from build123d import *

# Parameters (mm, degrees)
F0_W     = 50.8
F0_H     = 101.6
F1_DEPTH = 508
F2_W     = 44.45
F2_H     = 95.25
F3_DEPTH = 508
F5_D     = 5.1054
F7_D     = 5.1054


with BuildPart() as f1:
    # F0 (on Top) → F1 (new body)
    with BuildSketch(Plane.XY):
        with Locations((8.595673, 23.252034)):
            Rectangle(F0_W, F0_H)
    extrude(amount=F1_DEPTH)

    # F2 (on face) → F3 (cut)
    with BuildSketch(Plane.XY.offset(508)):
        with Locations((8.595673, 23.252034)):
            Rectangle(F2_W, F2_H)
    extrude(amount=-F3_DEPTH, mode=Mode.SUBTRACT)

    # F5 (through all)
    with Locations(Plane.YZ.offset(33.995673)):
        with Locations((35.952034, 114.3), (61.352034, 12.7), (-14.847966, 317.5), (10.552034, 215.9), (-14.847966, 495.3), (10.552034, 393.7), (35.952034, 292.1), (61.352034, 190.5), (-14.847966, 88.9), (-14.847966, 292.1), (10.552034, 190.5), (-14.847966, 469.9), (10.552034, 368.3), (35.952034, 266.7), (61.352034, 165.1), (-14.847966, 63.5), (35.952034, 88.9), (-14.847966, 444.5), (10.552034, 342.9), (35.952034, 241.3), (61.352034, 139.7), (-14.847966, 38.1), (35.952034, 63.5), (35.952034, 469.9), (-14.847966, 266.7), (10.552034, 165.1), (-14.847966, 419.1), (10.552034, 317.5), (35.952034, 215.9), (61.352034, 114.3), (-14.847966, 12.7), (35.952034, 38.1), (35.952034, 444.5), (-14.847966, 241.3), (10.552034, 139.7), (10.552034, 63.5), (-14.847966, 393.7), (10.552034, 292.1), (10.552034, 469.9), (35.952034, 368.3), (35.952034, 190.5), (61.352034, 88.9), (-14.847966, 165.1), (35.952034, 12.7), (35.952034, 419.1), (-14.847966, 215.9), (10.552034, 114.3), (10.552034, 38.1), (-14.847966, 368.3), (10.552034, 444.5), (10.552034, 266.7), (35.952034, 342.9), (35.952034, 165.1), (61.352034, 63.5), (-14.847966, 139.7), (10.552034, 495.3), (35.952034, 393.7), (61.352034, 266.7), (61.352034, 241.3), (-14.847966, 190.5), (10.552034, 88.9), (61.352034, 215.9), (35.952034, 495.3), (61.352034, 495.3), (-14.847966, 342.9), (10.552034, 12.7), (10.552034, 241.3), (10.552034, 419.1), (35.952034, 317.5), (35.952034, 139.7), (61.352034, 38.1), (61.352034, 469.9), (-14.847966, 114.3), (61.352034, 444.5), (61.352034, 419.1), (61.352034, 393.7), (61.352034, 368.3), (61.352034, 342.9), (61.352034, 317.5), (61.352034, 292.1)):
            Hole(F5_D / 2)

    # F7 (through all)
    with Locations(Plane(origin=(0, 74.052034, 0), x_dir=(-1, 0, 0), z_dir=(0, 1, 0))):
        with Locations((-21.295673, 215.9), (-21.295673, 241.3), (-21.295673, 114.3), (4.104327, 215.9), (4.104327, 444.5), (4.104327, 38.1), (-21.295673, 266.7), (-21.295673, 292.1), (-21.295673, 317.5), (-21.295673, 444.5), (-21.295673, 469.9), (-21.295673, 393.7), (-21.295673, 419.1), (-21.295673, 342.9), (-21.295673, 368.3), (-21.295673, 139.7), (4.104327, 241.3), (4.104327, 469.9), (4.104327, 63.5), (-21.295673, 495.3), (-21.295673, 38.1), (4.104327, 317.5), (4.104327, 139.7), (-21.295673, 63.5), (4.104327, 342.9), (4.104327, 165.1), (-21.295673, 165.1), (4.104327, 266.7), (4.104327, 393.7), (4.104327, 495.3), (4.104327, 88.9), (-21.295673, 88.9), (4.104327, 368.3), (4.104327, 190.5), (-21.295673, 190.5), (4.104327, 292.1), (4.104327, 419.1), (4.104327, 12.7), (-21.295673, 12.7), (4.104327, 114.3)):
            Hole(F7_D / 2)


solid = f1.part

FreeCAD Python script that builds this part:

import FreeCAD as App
import Part
import Sketcher
from FreeCAD import Vector
Q = App.Units.Quantity


def add_polygon(sketch, points):
    """Adds a closed chain of lines whose ends are joined by coincident constraints."""
    first, n = sketch.GeometryCount, len(points)
    for a, b in zip(points, points[1:] + points[:1]):
        sketch.addGeometry(Part.LineSegment(App.Vector(*a, 0), App.Vector(*b, 0)), False)
    for i in range(n):
        sketch.addConstraint(Sketcher.Constraint("Coincident", first + i, 2, first + (i + 1) % n, 1))

doc = App.newDocument("Part")
body = doc.addObject("PartDesign::Body", "Body")

# Sketch on XY plane
sketch1 = doc.addObject("Sketcher::SketchObject", "Sketch")
body.addObject(sketch1)
sketch1.AttachmentSupport = (doc.XY_Plane, [""])
sketch1.MapMode = "FlatFace"
add_polygon(sketch1, [(-16.804327, 74.052034), (-16.804327, -27.547966), (33.995673, -27.547966), (33.995673, 74.052034)])  # lines 0-3
sketch1.addConstraint([
    Sketcher.Constraint("Vertical", 0),
    Sketcher.Constraint("Horizontal", 1),
    Sketcher.Constraint("Vertical", 2),
    Sketcher.Constraint("Horizontal", 3),
    Sketcher.Constraint("DistanceX", 1, 1, 1, 2, Q("2 in")),
    Sketcher.Constraint("DistanceY", 0, 2, 0, 1, Q("4 in")),
    Sketcher.Constraint("DistanceX", 0, 2, -1, 1, Q("16.804327 mm")),
    Sketcher.Constraint("DistanceY", 0, 2, -1, 1, Q("27.547966 mm")),
])
pad1 = doc.addObject("PartDesign::Pad", "Pad")
body.addObject(pad1)
pad1.Profile = sketch1
pad1.Length = Q("20 in")

# Sketch on XY plane
sketch2 = doc.addObject("Sketcher::SketchObject", "Sketch001")
body.addObject(sketch2)
sketch2.AttachmentSupport = (doc.XY_Plane, [""])
sketch2.MapMode = "FlatFace"
sketch2.AttachmentOffset = App.Placement(Vector(0, 0, 20 * 25.4), App.Rotation())
add_polygon(sketch2, [(-13.629327, 70.877034), (-13.629327, -24.372966), (30.820673, -24.372966), (30.820673, 70.877034)])  # lines 0-3
sketch2.addConstraint([
    Sketcher.Constraint("Vertical", 0),
    Sketcher.Constraint("Horizontal", 1),
    Sketcher.Constraint("Vertical", 2),
    Sketcher.Constraint("Horizontal", 3),
    Sketcher.Constraint("DistanceX", 1, 1, 1, 2, Q("1.75 in")),
    Sketcher.Constraint("DistanceY", 0, 2, 0, 1, Q("3.75 in")),
    Sketcher.Constraint("DistanceX", 0, 2, -1, 1, Q("13.629327 mm")),
    Sketcher.Constraint("DistanceY", 0, 2, -1, 1, Q("24.372966 mm")),
])
pocket1 = doc.addObject("PartDesign::Pocket", "Pocket")
body.addObject(pocket1)
pocket1.Profile = sketch2
pocket1.Length = Q("20 in")

# Sketch on YZ plane
sketch3 = doc.addObject("Sketcher::SketchObject", "Sketch002")
body.addObject(sketch3)
sketch3.AttachmentSupport = (doc.YZ_Plane, [""])
sketch3.MapMode = "FlatFace"
sketch3.AttachmentOffset = App.Placement(Vector(0, 0, 33.995673), App.Rotation())
sketch3.addGeometry([
    Part.Circle(Vector(35.952034, 114.3, 0), Vector(0, 0, 1), 2.5527),  # 0
    Part.Circle(Vector(61.352034, 12.7, 0), Vector(0, 0, 1), 2.5527),  # 1
    Part.Circle(Vector(-14.847966, 317.5, 0), Vector(0, 0, 1), 2.5527),  # 2
    Part.Circle(Vector(10.552034, 215.9, 0), Vector(0, 0, 1), 2.5527),  # 3
    Part.Circle(Vector(-14.847966, 495.3, 0), Vector(0, 0, 1), 2.5527),  # 4
    Part.Circle(Vector(10.552034, 393.7, 0), Vector(0, 0, 1), 2.5527),  # 5
    Part.Circle(Vector(35.952034, 292.1, 0), Vector(0, 0, 1), 2.5527),  # 6
    Part.Circle(Vector(61.352034, 190.5, 0), Vector(0, 0, 1), 2.5527),  # 7
    Part.Circle(Vector(-14.847966, 88.9, 0), Vector(0, 0, 1), 2.5527),  # 8
    Part.Circle(Vector(-14.847966, 292.1, 0), Vector(0, 0, 1), 2.5527),  # 9
    Part.Circle(Vector(10.552034, 190.5, 0), Vector(0, 0, 1), 2.5527),  # 10
    Part.Circle(Vector(-14.847966, 469.9, 0), Vector(0, 0, 1), 2.5527),  # 11
    Part.Circle(Vector(10.552034, 368.3, 0), Vector(0, 0, 1), 2.5527),  # 12
    Part.Circle(Vector(35.952034, 266.7, 0), Vector(0, 0, 1), 2.5527),  # 13
    Part.Circle(Vector(61.352034, 165.1, 0), Vector(0, 0, 1), 2.5527),  # 14
    Part.Circle(Vector(-14.847966, 63.5, 0), Vector(0, 0, 1), 2.5527),  # 15
    Part.Circle(Vector(35.952034, 88.9, 0), Vector(0, 0, 1), 2.5527),  # 16
    Part.Circle(Vector(-14.847966, 444.5, 0), Vector(0, 0, 1), 2.5527),  # 17
    Part.Circle(Vector(10.552034, 342.9, 0), Vector(0, 0, 1), 2.5527),  # 18
    Part.Circle(Vector(35.952034, 241.3, 0), Vector(0, 0, 1), 2.5527),  # 19
    Part.Circle(Vector(61.352034, 139.7, 0), Vector(0, 0, 1), 2.5527),  # 20
    Part.Circle(Vector(-14.847966, 38.1, 0), Vector(0, 0, 1), 2.5527),  # 21
    Part.Circle(Vector(35.952034, 63.5, 0), Vector(0, 0, 1), 2.5527),  # 22
    Part.Circle(Vector(35.952034, 469.9, 0), Vector(0, 0, 1), 2.5527),  # 23
    Part.Circle(Vector(-14.847966, 266.7, 0), Vector(0, 0, 1), 2.5527),  # 24
    Part.Circle(Vector(10.552034, 165.1, 0), Vector(0, 0, 1), 2.5527),  # 25
    Part.Circle(Vector(-14.847966, 419.1, 0), Vector(0, 0, 1), 2.5527),  # 26
    Part.Circle(Vector(10.552034, 317.5, 0), Vector(0, 0, 1), 2.5527),  # 27
    Part.Circle(Vector(35.952034, 215.9, 0), Vector(0, 0, 1), 2.5527),  # 28
    Part.Circle(Vector(61.352034, 114.3, 0), Vector(0, 0, 1), 2.5527),  # 29
    Part.Circle(Vector(-14.847966, 12.7, 0), Vector(0, 0, 1), 2.5527),  # 30
    Part.Circle(Vector(35.952034, 38.1, 0), Vector(0, 0, 1), 2.5527),  # 31
    Part.Circle(Vector(35.952034, 444.5, 0), Vector(0, 0, 1), 2.5527),  # 32
    Part.Circle(Vector(-14.847966, 241.3, 0), Vector(0, 0, 1), 2.5527),  # 33
    Part.Circle(Vector(10.552034, 139.7, 0), Vector(0, 0, 1), 2.5527),  # 34
    Part.Circle(Vector(10.552034, 63.5, 0), Vector(0, 0, 1), 2.5527),  # 35
    Part.Circle(Vector(-14.847966, 393.7, 0), Vector(0, 0, 1), 2.5527),  # 36
    Part.Circle(Vector(10.552034, 292.1, 0), Vector(0, 0, 1), 2.5527),  # 37
    Part.Circle(Vector(10.552034, 469.9, 0), Vector(0, 0, 1), 2.5527),  # 38
    Part.Circle(Vector(35.952034, 368.3, 0), Vector(0, 0, 1), 2.5527),  # 39
    Part.Circle(Vector(35.952034, 190.5, 0), Vector(0, 0, 1), 2.5527),  # 40
    Part.Circle(Vector(61.352034, 88.9, 0), Vector(0, 0, 1), 2.5527),  # 41
    Part.Circle(Vector(-14.847966, 165.1, 0), Vector(0, 0, 1), 2.5527),  # 42
    Part.Circle(Vector(35.952034, 12.7, 0), Vector(0, 0, 1), 2.5527),  # 43
    Part.Circle(Vector(35.952034, 419.1, 0), Vector(0, 0, 1), 2.5527),  # 44
    Part.Circle(Vector(-14.847966, 215.9, 0), Vector(0, 0, 1), 2.5527),  # 45
    Part.Circle(Vector(10.552034, 114.3, 0), Vector(0, 0, 1), 2.5527),  # 46
    Part.Circle(Vector(10.552034, 38.1, 0), Vector(0, 0, 1), 2.5527),  # 47
    Part.Circle(Vector(-14.847966, 368.3, 0), Vector(0, 0, 1), 2.5527),  # 48
    Part.Circle(Vector(10.552034, 444.5, 0), Vector(0, 0, 1), 2.5527),  # 49
    Part.Circle(Vector(10.552034, 266.7, 0), Vector(0, 0, 1), 2.5527),  # 50
    Part.Circle(Vector(35.952034, 342.9, 0), Vector(0, 0, 1), 2.5527),  # 51
    Part.Circle(Vector(35.952034, 165.1, 0), Vector(0, 0, 1), 2.5527),  # 52
    Part.Circle(Vector(61.352034, 63.5, 0), Vector(0, 0, 1), 2.5527),  # 53
    Part.Circle(Vector(-14.847966, 139.7, 0), Vector(0, 0, 1), 2.5527),  # 54
    Part.Circle(Vector(10.552034, 495.3, 0), Vector(0, 0, 1), 2.5527),  # 55
    Part.Circle(Vector(35.952034, 393.7, 0), Vector(0, 0, 1), 2.5527),  # 56
    Part.Circle(Vector(61.352034, 266.7, 0), Vector(0, 0, 1), 2.5527),  # 57
    Part.Circle(Vector(61.352034, 241.3, 0), Vector(0, 0, 1), 2.5527),  # 58
    Part.Circle(Vector(-14.847966, 190.5, 0), Vector(0, 0, 1), 2.5527),  # 59
    Part.Circle(Vector(10.552034, 88.9, 0), Vector(0, 0, 1), 2.5527),  # 60
    Part.Circle(Vector(61.352034, 215.9, 0), Vector(0, 0, 1), 2.5527),  # 61
    Part.Circle(Vector(35.952034, 495.3, 0), Vector(0, 0, 1), 2.5527),  # 62
    Part.Circle(Vector(61.352034, 495.3, 0), Vector(0, 0, 1), 2.5527),  # 63
    Part.Circle(Vector(-14.847966, 342.9, 0), Vector(0, 0, 1), 2.5527),  # 64
    Part.Circle(Vector(10.552034, 12.7, 0), Vector(0, 0, 1), 2.5527),  # 65
    Part.Circle(Vector(10.552034, 241.3, 0), Vector(0, 0, 1), 2.5527),  # 66
    Part.Circle(Vector(10.552034, 419.1, 0), Vector(0, 0, 1), 2.5527),  # 67
    Part.Circle(Vector(35.952034, 317.5, 0), Vector(0, 0, 1), 2.5527),  # 68
    Part.Circle(Vector(35.952034, 139.7, 0), Vector(0, 0, 1), 2.5527),  # 69
    Part.Circle(Vector(61.352034, 38.1, 0), Vector(0, 0, 1), 2.5527),  # 70
    Part.Circle(Vector(61.352034, 469.9, 0), Vector(0, 0, 1), 2.5527),  # 71
    Part.Circle(Vector(-14.847966, 114.3, 0), Vector(0, 0, 1), 2.5527),  # 72
    Part.Circle(Vector(61.352034, 444.5, 0), Vector(0, 0, 1), 2.5527),  # 73
    Part.Circle(Vector(61.352034, 419.1, 0), Vector(0, 0, 1), 2.5527),  # 74
    Part.Circle(Vector(61.352034, 393.7, 0), Vector(0, 0, 1), 2.5527),  # 75
    Part.Circle(Vector(61.352034, 368.3, 0), Vector(0, 0, 1), 2.5527),  # 76
    Part.Circle(Vector(61.352034, 342.9, 0), Vector(0, 0, 1), 2.5527),  # 77
    Part.Circle(Vector(61.352034, 317.5, 0), Vector(0, 0, 1), 2.5527),  # 78
    Part.Circle(Vector(61.352034, 292.1, 0), Vector(0, 0, 1), 2.5527),  # 79
], False)
sketch3.addConstraint([
    Sketcher.Constraint("Equal", 0, 1),
    Sketcher.Constraint("Equal", 1, 2),
    Sketcher.Constraint("Equal", 2, 3),
    Sketcher.Constraint("Equal", 3, 4),
    Sketcher.Constraint("Equal", 4, 5),
    Sketcher.Constraint("Equal", 5, 6),
    Sketcher.Constraint("Equal", 6, 7),
    Sketcher.Constraint("Equal", 7, 8),
    Sketcher.Constraint("Equal", 8, 9),
    Sketcher.Constraint("Equal", 9, 10),
    Sketcher.Constraint("Equal", 10, 11),
    Sketcher.Constraint("Equal", 11, 12),
    Sketcher.Constraint("Equal", 12, 13),
    Sketcher.Constraint("Equal", 13, 14),
    Sketcher.Constraint("Equal", 14, 15),
    Sketcher.Constraint("Equal", 15, 16),
    Sketcher.Constraint("Equal", 16, 17),
    Sketcher.Constraint("Equal", 17, 18),
    Sketcher.Constraint("Equal", 18, 19),
    Sketcher.Constraint("Equal", 19, 20),
    Sketcher.Constraint("Equal", 20, 21),
    Sketcher.Constraint("Equal", 21, 22),
    Sketcher.Constraint("Equal", 22, 23),
    Sketcher.Constraint("Equal", 23, 24),
    Sketcher.Constraint("Equal", 24, 25),
    Sketcher.Constraint("Equal", 25, 26),
    Sketcher.Constraint("Equal", 26, 27),
    Sketcher.Constraint("Equal", 27, 28),
    Sketcher.Constraint("Equal", 28, 29),
    Sketcher.Constraint("Equal", 29, 30),
    Sketcher.Constraint("Equal", 30, 31),
    Sketcher.Constraint("Equal", 31, 32),
    Sketcher.Constraint("Equal", 32, 33),
    Sketcher.Constraint("Equal", 33, 34),
    Sketcher.Constraint("Equal", 34, 35),
    Sketcher.Constraint("Equal", 35, 36),
    Sketcher.Constraint("Equal", 36, 37),
    Sketcher.Constraint("Equal", 37, 38),
    Sketcher.Constraint("Equal", 38, 39),
    Sketcher.Constraint("Equal", 39, 40),
    Sketcher.Constraint("Equal", 40, 41),
    Sketcher.Constraint("Equal", 41, 42),
    Sketcher.Constraint("Equal", 42, 43),
    Sketcher.Constraint("Equal", 43, 44),
    Sketcher.Constraint("Equal", 44, 45),
    Sketcher.Constraint("Equal", 45, 46),
    Sketcher.Constraint("Equal", 46, 47),
    Sketcher.Constraint("Equal", 47, 48),
    Sketcher.Constraint("Equal", 48, 49),
    Sketcher.Constraint("Equal", 49, 50),
    Sketcher.Constraint("Equal", 50, 51),
    Sketcher.Constraint("Equal", 51, 52),
    Sketcher.Constraint("Equal", 52, 53),
    Sketcher.Constraint("Equal", 53, 54),
    Sketcher.Constraint("Equal", 54, 55),
    Sketcher.Constraint("Equal", 55, 56),
    Sketcher.Constraint("Equal", 56, 57),
    Sketcher.Constraint("Equal", 57, 58),
    Sketcher.Constraint("Equal", 58, 59),
    Sketcher.Constraint("Equal", 59, 60),
    Sketcher.Constraint("Equal", 60, 61),
    Sketcher.Constraint("Equal", 61, 62),
    Sketcher.Constraint("Equal", 62, 63),
    Sketcher.Constraint("Equal", 63, 64),
    Sketcher.Constraint("Equal", 64, 65),
    Sketcher.Constraint("Equal", 65, 66),
    Sketcher.Constraint("Equal", 66, 67),
    Sketcher.Constraint("Equal", 67, 68),
    Sketcher.Constraint("Equal", 68, 69),
    Sketcher.Constraint("Equal", 69, 70),
    Sketcher.Constraint("Equal", 70, 71),
    Sketcher.Constraint("Equal", 71, 72),
    Sketcher.Constraint("Equal", 72, 73),
    Sketcher.Constraint("Equal", 73, 74),
    Sketcher.Constraint("Equal", 74, 75),
    Sketcher.Constraint("Equal", 75, 76),
    Sketcher.Constraint("Equal", 76, 77),
    Sketcher.Constraint("Equal", 77, 78),
    Sketcher.Constraint("Equal", 78, 79),
    Sketcher.Constraint("Horizontal", 6, 3, 9, 3),
    Sketcher.Constraint("Horizontal", 7, 3, 10, 3),
    Sketcher.Constraint("Horizontal", 8, 3, 16, 3),
    Sketcher.Constraint("Horizontal", 15, 3, 22, 3),
    Sketcher.Constraint("Horizontal", 11, 3, 23, 3),
    Sketcher.Constraint("Horizontal", 13, 3, 24, 3),
    Sketcher.Constraint("Horizontal", 14, 3, 25, 3),
    Sketcher.Constraint("Horizontal", 2, 3, 27, 3),
    Sketcher.Constraint("Horizontal", 3, 3, 28, 3),
    Sketcher.Constraint("Horizontal", 0, 3, 29, 3),
    Sketcher.Constraint("Horizontal", 1, 3, 30, 3),
    Sketcher.Constraint("Horizontal", 21, 3, 31, 3),
    Sketcher.Constraint("Horizontal", 17, 3, 32, 3),
    Sketcher.Constraint("Horizontal", 19, 3, 33, 3),
    Sketcher.Constraint("Horizontal", 20, 3, 34, 3),
    Sketcher.Constraint("Horizontal", 22, 3, 35, 3),
    Sketcher.Constraint("Horizontal", 5, 3, 36, 3),
    Sketcher.Constraint("Horizontal", 9, 3, 37, 3),
    Sketcher.Constraint("Horizontal", 23, 3, 38, 3),
    Sketcher.Constraint("Horizontal", 12, 3, 39, 3),
    Sketcher.Constraint("Horizontal", 10, 3, 40, 3),
    Sketcher.Constraint("Horizontal", 16, 3, 41, 3),
    Sketcher.Constraint("Horizontal", 25, 3, 42, 3),
    Sketcher.Constraint("Horizontal", 30, 3, 43, 3),
    Sketcher.Constraint("Horizontal", 26, 3, 44, 3),
    Sketcher.Constraint("Horizontal", 28, 3, 45, 3),
    Sketcher.Constraint("Horizontal", 29, 3, 46, 3),
    Sketcher.Constraint("Horizontal", 31, 3, 47, 3),
    Sketcher.Constraint("Horizontal", 39, 3, 48, 3),
    Sketcher.Constraint("Horizontal", 32, 3, 49, 3),
    Sketcher.Constraint("Horizontal", 24, 3, 50, 3),
    Sketcher.Constraint("Horizontal", 18, 3, 51, 3),
    Sketcher.Constraint("Horizontal", 42, 3, 52, 3),
    Sketcher.Constraint("Horizontal", 35, 3, 53, 3),
    Sketcher.Constraint("Horizontal", 34, 3, 54, 3),
    Sketcher.Constraint("Horizontal", 4, 3, 55, 3),
    Sketcher.Constraint("Horizontal", 36, 3, 56, 3),
    Sketcher.Constraint("Horizontal", 50, 3, 57, 3),
    Sketcher.Constraint("Horizontal", 33, 3, 58, 3),
    Sketcher.Constraint("Horizontal", 40, 3, 59, 3),
    Sketcher.Constraint("Horizontal", 41, 3, 60, 3),
    Sketcher.Constraint("Horizontal", 45, 3, 61, 3),
    Sketcher.Constraint("Horizontal", 55, 3, 62, 3),
    Sketcher.Constraint("Horizontal", 62, 3, 63, 3),
    Sketcher.Constraint("Horizontal", 51, 3, 64, 3),
    Sketcher.Constraint("Horizontal", 43, 3, 65, 3),
    Sketcher.Constraint("Horizontal", 58, 3, 66, 3),
    Sketcher.Constraint("Horizontal", 44, 3, 67, 3),
    Sketcher.Constraint("Horizontal", 27, 3, 68, 3),
    Sketcher.Constraint("Horizontal", 54, 3, 69, 3),
    Sketcher.Constraint("Horizontal", 47, 3, 70, 3),
    Sketcher.Constraint("Horizontal", 38, 3, 71, 3),
    Sketcher.Constraint("Horizontal", 46, 3, 72, 3),
    Sketcher.Constraint("Horizontal", 49, 3, 73, 3),
    Sketcher.Constraint("Horizontal", 67, 3, 74, 3),
    Sketcher.Constraint("Horizontal", 56, 3, 75, 3),
    Sketcher.Constraint("Horizontal", 48, 3, 76, 3),
    Sketcher.Constraint("Horizontal", 64, 3, 77, 3),
    Sketcher.Constraint("Horizontal", 68, 3, 78, 3),
    Sketcher.Constraint("Horizontal", 37, 3, 79, 3),
    Sketcher.Constraint("Vertical", 2, 3, 4, 3),
    Sketcher.Constraint("Vertical", 3, 3, 5, 3),
    Sketcher.Constraint("Vertical", 0, 3, 6, 3),
    Sketcher.Constraint("Vertical", 1, 3, 7, 3),
    Sketcher.Constraint("Vertical", 4, 3, 8, 3),
    Sketcher.Constraint("Vertical", 8, 3, 9, 3),
    Sketcher.Constraint("Vertical", 5, 3, 10, 3),
    Sketcher.Constraint("Vertical", 9, 3, 11, 3),
    Sketcher.Constraint("Vertical", 10, 3, 12, 3),
    Sketcher.Constraint("Vertical", 6, 3, 13, 3),
    Sketcher.Constraint("Vertical", 7, 3, 14, 3),
    Sketcher.Constraint("Vertical", 11, 3, 15, 3),
    Sketcher.Constraint("Vertical", 13, 3, 16, 3),
    Sketcher.Constraint("Vertical", 15, 3, 17, 3),
    Sketcher.Constraint("Vertical", 12, 3, 18, 3),
    Sketcher.Constraint("Vertical", 16, 3, 19, 3),
    Sketcher.Constraint("Vertical", 14, 3, 20, 3),
    Sketcher.Constraint("Vertical", 17, 3, 21, 3),
    Sketcher.Constraint("Vertical", 19, 3, 22, 3),
    Sketcher.Constraint("Vertical", 22, 3, 23, 3),
    Sketcher.Constraint("Vertical", 21, 3, 24, 3),
    Sketcher.Constraint("Vertical", 18, 3, 25, 3),
    Sketcher.Constraint("Vertical", 24, 3, 26, 3),
    Sketcher.Constraint("Vertical", 25, 3, 27, 3),
    Sketcher.Constraint("Vertical", 23, 3, 28, 3),
    Sketcher.Constraint("Vertical", 20, 3, 29, 3),
    Sketcher.Constraint("Vertical", 26, 3, 30, 3),
    Sketcher.Constraint("Vertical", 28, 3, 31, 3),
    Sketcher.Constraint("Vertical", 31, 3, 32, 3),
    Sketcher.Constraint("Vertical", 30, 3, 33, 3),
    Sketcher.Constraint("Vertical", 27, 3, 34, 3),
    Sketcher.Constraint("Vertical", 34, 3, 35, 3),
    Sketcher.Constraint("Vertical", 33, 3, 36, 3),
    Sketcher.Constraint("Vertical", 35, 3, 37, 3),
    Sketcher.Constraint("Vertical", 37, 3, 38, 3),
    Sketcher.Constraint("Vertical", 32, 3, 39, 3),
    Sketcher.Constraint("Vertical", 39, 3, 40, 3),
    Sketcher.Constraint("Vertical", 29, 3, 41, 3),
    Sketcher.Constraint("Vertical", 36, 3, 42, 3),
    Sketcher.Constraint("Vertical", 40, 3, 43, 3),
    Sketcher.Constraint("Vertical", 43, 3, 44, 3),
    Sketcher.Constraint("Vertical", 42, 3, 45, 3),
    Sketcher.Constraint("Vertical", 38, 3, 46, 3),
    Sketcher.Constraint("Vertical", 46, 3, 47, 3),
    Sketcher.Constraint("Vertical", 45, 3, 48, 3),
    Sketcher.Constraint("Vertical", 47, 3, 49, 3),
    Sketcher.Constraint("Vertical", 49, 3, 50, 3),
    Sketcher.Constraint("Vertical", 44, 3, 51, 3),
    Sketcher.Constraint("Vertical", 51, 3, 52, 3),
    Sketcher.Constraint("Vertical", 41, 3, 53, 3),
    Sketcher.Constraint("Vertical", 48, 3, 54, 3),
    Sketcher.Constraint("Vertical", 50, 3, 55, 3),
    Sketcher.Constraint("Vertical", 52, 3, 56, 3),
    Sketcher.Constraint("Vertical", 53, 3, 57, 3),
    Sketcher.Constraint("Vertical", 57, 3, 58, 3),
    Sketcher.Constraint("Vertical", 54, 3, 59, 3),
    Sketcher.Constraint("Vertical", 55, 3, 60, 3),
    Sketcher.Constraint("Vertical", 58, 3, 61, 3),
    Sketcher.Constraint("Vertical", 56, 3, 62, 3),
    Sketcher.Constraint("Vertical", 61, 3, 63, 3),
    Sketcher.Constraint("Vertical", 59, 3, 64, 3),
    Sketcher.Constraint("Vertical", 60, 3, 65, 3),
    Sketcher.Constraint("Vertical", 65, 3, 66, 3),
    Sketcher.Constraint("Vertical", 66, 3, 67, 3),
    Sketcher.Constraint("Vertical", 62, 3, 68, 3),
    Sketcher.Constraint("Vertical", 68, 3, 69, 3),
    Sketcher.Constraint("Vertical", 63, 3, 70, 3),
    Sketcher.Constraint("Vertical", 70, 3, 71, 3),
    Sketcher.Constraint("Vertical", 64, 3, 72, 3),
    Sketcher.Constraint("Vertical", 71, 3, 73, 3),
    Sketcher.Constraint("Vertical", 73, 3, 74, 3),
    Sketcher.Constraint("Vertical", 74, 3, 75, 3),
    Sketcher.Constraint("Vertical", 75, 3, 76, 3),
    Sketcher.Constraint("Vertical", 76, 3, 77, 3),
    Sketcher.Constraint("Vertical", 77, 3, 78, 3),
    Sketcher.Constraint("Vertical", 78, 3, 79, 3),
    Sketcher.Constraint("Diameter", 0, Q("0.201 in")),
    Sketcher.Constraint("DistanceY", -1, 1, 0, 3, Q("4.5 in")),
    Sketcher.Constraint("DistanceY", -1, 1, 1, 3, Q("0.5 in")),
    Sketcher.Constraint("DistanceY", -1, 1, 2, 3, Q("12.5 in")),
    Sketcher.Constraint("DistanceY", -1, 1, 3, 3, Q("8.5 in")),
    Sketcher.Constraint("DistanceY", -1, 1, 4, 3, Q("19.5 in")),
    Sketcher.Constraint("DistanceY", -1, 1, 5, 3, Q("15.5 in")),
    Sketcher.Constraint("DistanceY", -1, 1, 6, 3, Q("11.5 in")),
    Sketcher.Constraint("DistanceY", -1, 1, 7, 3, Q("7.5 in")),
    Sketcher.Constraint("DistanceY", -1, 1, 8, 3, Q("3.5 in")),
    Sketcher.Constraint("DistanceY", -1, 1, 11, 3, Q("18.5 in")),
    Sketcher.Constraint("DistanceY", -1, 1, 12, 3, Q("14.5 in")),
    Sketcher.Constraint("DistanceY", -1, 1, 13, 3, Q("10.5 in")),
    Sketcher.Constraint("DistanceY", -1, 1, 14, 3, Q("6.5 in")),
    Sketcher.Constraint("DistanceY", -1, 1, 15, 3, Q("2.5 in")),
    Sketcher.Constraint("DistanceY", -1, 1, 17, 3, Q("17.5 in")),
    Sketcher.Constraint("DistanceY", -1, 1, 18, 3, Q("13.5 in")),
    Sketcher.Constraint("DistanceY", -1, 1, 19, 3, Q("9.5 in")),
    Sketcher.Constraint("DistanceY", -1, 1, 20, 3, Q("5.5 in")),
    Sketcher.Constraint("DistanceY", -1, 1, 21, 3, Q("1.5 in")),
    Sketcher.Constraint("DistanceY", -1, 1, 26, 3, Q("16.5 in")),
    Sketcher.Constraint("DistanceX", -1, 1, 0, 3, Q("35.952034 mm")),
    Sketcher.Constraint("DistanceX", -1, 1, 1, 3, Q("61.352034 mm")),
    Sketcher.Constraint("DistanceX", 2, 3, -1, 1, Q("14.847966 mm")),
    Sketcher.Constraint("DistanceX", -1, 1, 3, 3, Q("10.552034 mm")),
])
doc.recompute()
hole = doc.addObject("PartDesign::Hole", "Hole")
body.addObject(hole)
hole.Profile = sketch3
hole.ThreadType = "None"
hole.Diameter = Q("0.201 in")
hole.DepthType = "ThroughAll"

# Sketch on XZ plane
sketch4 = doc.addObject("Sketcher::SketchObject", "Sketch003")
body.addObject(sketch4)
sketch4.AttachmentSupport = (doc.XZ_Plane, [""])
sketch4.MapMode = "FlatFace"
sketch4.AttachmentOffset = App.Placement(Vector(0, 0, -74.052034), App.Rotation())
sketch4.addGeometry([
    Part.Circle(Vector(21.295673, 215.9, 0), Vector(0, 0, 1), 2.5527),  # 0
    Part.Circle(Vector(21.295673, 241.3, 0), Vector(0, 0, 1), 2.5527),  # 1
    Part.Circle(Vector(21.295673, 114.3, 0), Vector(0, 0, 1), 2.5527),  # 2
    Part.Circle(Vector(-4.104327, 215.9, 0), Vector(0, 0, 1), 2.5527),  # 3
    Part.Circle(Vector(-4.104327, 444.5, 0), Vector(0, 0, 1), 2.5527),  # 4
    Part.Circle(Vector(-4.104327, 38.1, 0), Vector(0, 0, 1), 2.5527),  # 5
    Part.Circle(Vector(21.295673, 266.7, 0), Vector(0, 0, 1), 2.5527),  # 6
    Part.Circle(Vector(21.295673, 292.1, 0), Vector(0, 0, 1), 2.5527),  # 7
    Part.Circle(Vector(21.295673, 317.5, 0), Vector(0, 0, 1), 2.5527),  # 8
    Part.Circle(Vector(21.295673, 444.5, 0), Vector(0, 0, 1), 2.5527),  # 9
    Part.Circle(Vector(21.295673, 469.9, 0), Vector(0, 0, 1), 2.5527),  # 10
    Part.Circle(Vector(21.295673, 393.7, 0), Vector(0, 0, 1), 2.5527),  # 11
    Part.Circle(Vector(21.295673, 419.1, 0), Vector(0, 0, 1), 2.5527),  # 12
    Part.Circle(Vector(21.295673, 342.9, 0), Vector(0, 0, 1), 2.5527),  # 13
    Part.Circle(Vector(21.295673, 368.3, 0), Vector(0, 0, 1), 2.5527),  # 14
    Part.Circle(Vector(21.295673, 139.7, 0), Vector(0, 0, 1), 2.5527),  # 15
    Part.Circle(Vector(-4.104327, 241.3, 0), Vector(0, 0, 1), 2.5527),  # 16
    Part.Circle(Vector(-4.104327, 469.9, 0), Vector(0, 0, 1), 2.5527),  # 17
    Part.Circle(Vector(-4.104327, 63.5, 0), Vector(0, 0, 1), 2.5527),  # 18
    Part.Circle(Vector(21.295673, 495.3, 0), Vector(0, 0, 1), 2.5527),  # 19
    Part.Circle(Vector(21.295673, 38.1, 0), Vector(0, 0, 1), 2.5527),  # 20
    Part.Circle(Vector(-4.104327, 317.5, 0), Vector(0, 0, 1), 2.5527),  # 21
    Part.Circle(Vector(-4.104327, 139.7, 0), Vector(0, 0, 1), 2.5527),  # 22
    Part.Circle(Vector(21.295673, 63.5, 0), Vector(0, 0, 1), 2.5527),  # 23
    Part.Circle(Vector(-4.104327, 342.9, 0), Vector(0, 0, 1), 2.5527),  # 24
    Part.Circle(Vector(-4.104327, 165.1, 0), Vector(0, 0, 1), 2.5527),  # 25
    Part.Circle(Vector(21.295673, 165.1, 0), Vector(0, 0, 1), 2.5527),  # 26
    Part.Circle(Vector(-4.104327, 266.7, 0), Vector(0, 0, 1), 2.5527),  # 27
    Part.Circle(Vector(-4.104327, 393.7, 0), Vector(0, 0, 1), 2.5527),  # 28
    Part.Circle(Vector(-4.104327, 495.3, 0), Vector(0, 0, 1), 2.5527),  # 29
    Part.Circle(Vector(-4.104327, 88.9, 0), Vector(0, 0, 1), 2.5527),  # 30
    Part.Circle(Vector(21.295673, 88.9, 0), Vector(0, 0, 1), 2.5527),  # 31
    Part.Circle(Vector(-4.104327, 368.3, 0), Vector(0, 0, 1), 2.5527),  # 32
    Part.Circle(Vector(-4.104327, 190.5, 0), Vector(0, 0, 1), 2.5527),  # 33
    Part.Circle(Vector(21.295673, 190.5, 0), Vector(0, 0, 1), 2.5527),  # 34
    Part.Circle(Vector(-4.104327, 292.1, 0), Vector(0, 0, 1), 2.5527),  # 35
    Part.Circle(Vector(-4.104327, 419.1, 0), Vector(0, 0, 1), 2.5527),  # 36
    Part.Circle(Vector(-4.104327, 12.7, 0), Vector(0, 0, 1), 2.5527),  # 37
    Part.Circle(Vector(21.295673, 12.7, 0), Vector(0, 0, 1), 2.5527),  # 38
    Part.Circle(Vector(-4.104327, 114.3, 0), Vector(0, 0, 1), 2.5527),  # 39
], False)
sketch4.addConstraint([
    Sketcher.Constraint("Equal", 0, 1),
    Sketcher.Constraint("Equal", 1, 2),
    Sketcher.Constraint("Equal", 2, 3),
    Sketcher.Constraint("Equal", 3, 4),
    Sketcher.Constraint("Equal", 4, 5),
    Sketcher.Constraint("Equal", 5, 6),
    Sketcher.Constraint("Equal", 6, 7),
    Sketcher.Constraint("Equal", 7, 8),
    Sketcher.Constraint("Equal", 8, 9),
    Sketcher.Constraint("Equal", 9, 10),
    Sketcher.Constraint("Equal", 10, 11),
    Sketcher.Constraint("Equal", 11, 12),
    Sketcher.Constraint("Equal", 12, 13),
    Sketcher.Constraint("Equal", 13, 14),
    Sketcher.Constraint("Equal", 14, 15),
    Sketcher.Constraint("Equal", 15, 16),
    Sketcher.Constraint("Equal", 16, 17),
    Sketcher.Constraint("Equal", 17, 18),
    Sketcher.Constraint("Equal", 18, 19),
    Sketcher.Constraint("Equal", 19, 20),
    Sketcher.Constraint("Equal", 20, 21),
    Sketcher.Constraint("Equal", 21, 22),
    Sketcher.Constraint("Equal", 22, 23),
    Sketcher.Constraint("Equal", 23, 24),
    Sketcher.Constraint("Equal", 24, 25),
    Sketcher.Constraint("Equal", 25, 26),
    Sketcher.Constraint("Equal", 26, 27),
    Sketcher.Constraint("Equal", 27, 28),
    Sketcher.Constraint("Equal", 28, 29),
    Sketcher.Constraint("Equal", 29, 30),
    Sketcher.Constraint("Equal", 30, 31),
    Sketcher.Constraint("Equal", 31, 32),
    Sketcher.Constraint("Equal", 32, 33),
    Sketcher.Constraint("Equal", 33, 34),
    Sketcher.Constraint("Equal", 34, 35),
    Sketcher.Constraint("Equal", 35, 36),
    Sketcher.Constraint("Equal", 36, 37),
    Sketcher.Constraint("Equal", 37, 38),
    Sketcher.Constraint("Equal", 38, 39),
    Sketcher.Constraint("Horizontal", 0, 3, 3, 3),
    Sketcher.Constraint("Horizontal", 4, 3, 9, 3),
    Sketcher.Constraint("Horizontal", 1, 3, 16, 3),
    Sketcher.Constraint("Horizontal", 10, 3, 17, 3),
    Sketcher.Constraint("Horizontal", 5, 3, 20, 3),
    Sketcher.Constraint("Horizontal", 8, 3, 21, 3),
    Sketcher.Constraint("Horizontal", 15, 3, 22, 3),
    Sketcher.Constraint("Horizontal", 18, 3, 23, 3),
    Sketcher.Constraint("Horizontal", 13, 3, 24, 3),
    Sketcher.Constraint("Horizontal", 25, 3, 26, 3),
    Sketcher.Constraint("Horizontal", 6, 3, 27, 3),
    Sketcher.Constraint("Horizontal", 11, 3, 28, 3),
    Sketcher.Constraint("Horizontal", 19, 3, 29, 3),
    Sketcher.Constraint("Horizontal", 30, 3, 31, 3),
    Sketcher.Constraint("Horizontal", 14, 3, 32, 3),
    Sketcher.Constraint("Horizontal", 33, 3, 34, 3),
    Sketcher.Constraint("Horizontal", 7, 3, 35, 3),
    Sketcher.Constraint("Horizontal", 12, 3, 36, 3),
    Sketcher.Constraint("Horizontal", 37, 3, 38, 3),
    Sketcher.Constraint("Horizontal", 2, 3, 39, 3),
    Sketcher.Constraint("Vertical", 0, 3, 1, 3),
    Sketcher.Constraint("Vertical", 1, 3, 2, 3),
    Sketcher.Constraint("Vertical", 3, 3, 4, 3),
    Sketcher.Constraint("Vertical", 4, 3, 5, 3),
    Sketcher.Constraint("Vertical", 2, 3, 6, 3),
    Sketcher.Constraint("Vertical", 6, 3, 7, 3),
    Sketcher.Constraint("Vertical", 7, 3, 8, 3),
    Sketcher.Constraint("Vertical", 8, 3, 9, 3),
    Sketcher.Constraint("Vertical", 9, 3, 10, 3),
    Sketcher.Constraint("Vertical", 10, 3, 11, 3),
    Sketcher.Constraint("Vertical", 11, 3, 12, 3),
    Sketcher.Constraint("Vertical", 12, 3, 13, 3),
    Sketcher.Constraint("Vertical", 13, 3, 14, 3),
    Sketcher.Constraint("Vertical", 14, 3, 15, 3),
    Sketcher.Constraint("Vertical", 5, 3, 16, 3),
    Sketcher.Constraint("Vertical", 16, 3, 17, 3),
    Sketcher.Constraint("Vertical", 17, 3, 18, 3),
    Sketcher.Constraint("Vertical", 15, 3, 19, 3),
    Sketcher.Constraint("Vertical", 19, 3, 20, 3),
    Sketcher.Constraint("Vertical", 18, 3, 21, 3),
    Sketcher.Constraint("Vertical", 21, 3, 22, 3),
    Sketcher.Constraint("Vertical", 20, 3, 23, 3),
    Sketcher.Constraint("Vertical", 22, 3, 24, 3),
    Sketcher.Constraint("Vertical", 24, 3, 25, 3),
    Sketcher.Constraint("Vertical", 23, 3, 26, 3),
    Sketcher.Constraint("Vertical", 25, 3, 27, 3),
    Sketcher.Constraint("Vertical", 27, 3, 28, 3),
    Sketcher.Constraint("Vertical", 28, 3, 29, 3),
    Sketcher.Constraint("Vertical", 29, 3, 30, 3),
    Sketcher.Constraint("Vertical", 26, 3, 31, 3),
    Sketcher.Constraint("Vertical", 30, 3, 32, 3),
    Sketcher.Constraint("Vertical", 32, 3, 33, 3),
    Sketcher.Constraint("Vertical", 31, 3, 34, 3),
    Sketcher.Constraint("Vertical", 33, 3, 35, 3),
    Sketcher.Constraint("Vertical", 35, 3, 36, 3),
    Sketcher.Constraint("Vertical", 36, 3, 37, 3),
    Sketcher.Constraint("Vertical", 34, 3, 38, 3),
    Sketcher.Constraint("Vertical", 37, 3, 39, 3),
    Sketcher.Constraint("Diameter", 0, Q("0.201 in")),
    Sketcher.Constraint("DistanceY", 0, 3, 1, 3, Q("1 in")),
    Sketcher.Constraint("DistanceY", 2, 3, 0, 3, Q("4 in")),
    Sketcher.Constraint("DistanceX", 3, 3, 0, 3, Q("1 in")),
    Sketcher.Constraint("DistanceY", 1, 3, 4, 3, Q("8 in")),
    Sketcher.Constraint("DistanceY", 5, 3, 2, 3, Q("3 in")),
    Sketcher.Constraint("DistanceY", 1, 3, 6, 3, Q("1 in")),
    Sketcher.Constraint("DistanceY", 6, 3, 7, 3, Q("1 in")),
    Sketcher.Constraint("DistanceY", 7, 3, 8, 3, Q("1 in")),
    Sketcher.Constraint("DistanceY", 9, 3, 10, 3, Q("1 in")),
    Sketcher.Constraint("DistanceY", 11, 3, 9, 3, Q("2 in")),
    Sketcher.Constraint("DistanceY", 12, 3, 9, 3, Q("1 in")),
    Sketcher.Constraint("DistanceY", 8, 3, 13, 3, Q("1 in")),
    Sketcher.Constraint("DistanceY", 14, 3, 11, 3, Q("1 in")),
    Sketcher.Constraint("DistanceY", 2, 3, 15, 3, Q("1 in")),
    Sketcher.Constraint("DistanceY", 5, 3, 18, 3, Q("1 in")),
    Sketcher.Constraint("DistanceY", 10, 3, 19, 3, Q("1 in")),
    Sketcher.Constraint("DistanceY", 22, 3, 25, 3, Q("1 in")),
    Sketcher.Constraint("DistanceY", 18, 3, 30, 3, Q("1 in")),
    Sketcher.Constraint("DistanceY", 33, 3, 3, 3, Q("1 in")),
    Sketcher.Constraint("DistanceY", 37, 3, 5, 3, Q("1 in")),
    Sketcher.Constraint("DistanceY", -1, 1, 0, 3, Q("8.5 in")),
    Sketcher.Constraint("DistanceX", -1, 1, 0, 3, Q("21.295673 mm")),
])
doc.recompute()
hole2 = doc.addObject("PartDesign::Hole", "Hole001")
body.addObject(hole2)
hole2.Profile = sketch4
hole2.ThreadType = "None"
hole2.Diameter = Q("0.201 in")
hole2.DepthType = "ThroughAll"
hole2.Reversed = True

doc.recompute()
